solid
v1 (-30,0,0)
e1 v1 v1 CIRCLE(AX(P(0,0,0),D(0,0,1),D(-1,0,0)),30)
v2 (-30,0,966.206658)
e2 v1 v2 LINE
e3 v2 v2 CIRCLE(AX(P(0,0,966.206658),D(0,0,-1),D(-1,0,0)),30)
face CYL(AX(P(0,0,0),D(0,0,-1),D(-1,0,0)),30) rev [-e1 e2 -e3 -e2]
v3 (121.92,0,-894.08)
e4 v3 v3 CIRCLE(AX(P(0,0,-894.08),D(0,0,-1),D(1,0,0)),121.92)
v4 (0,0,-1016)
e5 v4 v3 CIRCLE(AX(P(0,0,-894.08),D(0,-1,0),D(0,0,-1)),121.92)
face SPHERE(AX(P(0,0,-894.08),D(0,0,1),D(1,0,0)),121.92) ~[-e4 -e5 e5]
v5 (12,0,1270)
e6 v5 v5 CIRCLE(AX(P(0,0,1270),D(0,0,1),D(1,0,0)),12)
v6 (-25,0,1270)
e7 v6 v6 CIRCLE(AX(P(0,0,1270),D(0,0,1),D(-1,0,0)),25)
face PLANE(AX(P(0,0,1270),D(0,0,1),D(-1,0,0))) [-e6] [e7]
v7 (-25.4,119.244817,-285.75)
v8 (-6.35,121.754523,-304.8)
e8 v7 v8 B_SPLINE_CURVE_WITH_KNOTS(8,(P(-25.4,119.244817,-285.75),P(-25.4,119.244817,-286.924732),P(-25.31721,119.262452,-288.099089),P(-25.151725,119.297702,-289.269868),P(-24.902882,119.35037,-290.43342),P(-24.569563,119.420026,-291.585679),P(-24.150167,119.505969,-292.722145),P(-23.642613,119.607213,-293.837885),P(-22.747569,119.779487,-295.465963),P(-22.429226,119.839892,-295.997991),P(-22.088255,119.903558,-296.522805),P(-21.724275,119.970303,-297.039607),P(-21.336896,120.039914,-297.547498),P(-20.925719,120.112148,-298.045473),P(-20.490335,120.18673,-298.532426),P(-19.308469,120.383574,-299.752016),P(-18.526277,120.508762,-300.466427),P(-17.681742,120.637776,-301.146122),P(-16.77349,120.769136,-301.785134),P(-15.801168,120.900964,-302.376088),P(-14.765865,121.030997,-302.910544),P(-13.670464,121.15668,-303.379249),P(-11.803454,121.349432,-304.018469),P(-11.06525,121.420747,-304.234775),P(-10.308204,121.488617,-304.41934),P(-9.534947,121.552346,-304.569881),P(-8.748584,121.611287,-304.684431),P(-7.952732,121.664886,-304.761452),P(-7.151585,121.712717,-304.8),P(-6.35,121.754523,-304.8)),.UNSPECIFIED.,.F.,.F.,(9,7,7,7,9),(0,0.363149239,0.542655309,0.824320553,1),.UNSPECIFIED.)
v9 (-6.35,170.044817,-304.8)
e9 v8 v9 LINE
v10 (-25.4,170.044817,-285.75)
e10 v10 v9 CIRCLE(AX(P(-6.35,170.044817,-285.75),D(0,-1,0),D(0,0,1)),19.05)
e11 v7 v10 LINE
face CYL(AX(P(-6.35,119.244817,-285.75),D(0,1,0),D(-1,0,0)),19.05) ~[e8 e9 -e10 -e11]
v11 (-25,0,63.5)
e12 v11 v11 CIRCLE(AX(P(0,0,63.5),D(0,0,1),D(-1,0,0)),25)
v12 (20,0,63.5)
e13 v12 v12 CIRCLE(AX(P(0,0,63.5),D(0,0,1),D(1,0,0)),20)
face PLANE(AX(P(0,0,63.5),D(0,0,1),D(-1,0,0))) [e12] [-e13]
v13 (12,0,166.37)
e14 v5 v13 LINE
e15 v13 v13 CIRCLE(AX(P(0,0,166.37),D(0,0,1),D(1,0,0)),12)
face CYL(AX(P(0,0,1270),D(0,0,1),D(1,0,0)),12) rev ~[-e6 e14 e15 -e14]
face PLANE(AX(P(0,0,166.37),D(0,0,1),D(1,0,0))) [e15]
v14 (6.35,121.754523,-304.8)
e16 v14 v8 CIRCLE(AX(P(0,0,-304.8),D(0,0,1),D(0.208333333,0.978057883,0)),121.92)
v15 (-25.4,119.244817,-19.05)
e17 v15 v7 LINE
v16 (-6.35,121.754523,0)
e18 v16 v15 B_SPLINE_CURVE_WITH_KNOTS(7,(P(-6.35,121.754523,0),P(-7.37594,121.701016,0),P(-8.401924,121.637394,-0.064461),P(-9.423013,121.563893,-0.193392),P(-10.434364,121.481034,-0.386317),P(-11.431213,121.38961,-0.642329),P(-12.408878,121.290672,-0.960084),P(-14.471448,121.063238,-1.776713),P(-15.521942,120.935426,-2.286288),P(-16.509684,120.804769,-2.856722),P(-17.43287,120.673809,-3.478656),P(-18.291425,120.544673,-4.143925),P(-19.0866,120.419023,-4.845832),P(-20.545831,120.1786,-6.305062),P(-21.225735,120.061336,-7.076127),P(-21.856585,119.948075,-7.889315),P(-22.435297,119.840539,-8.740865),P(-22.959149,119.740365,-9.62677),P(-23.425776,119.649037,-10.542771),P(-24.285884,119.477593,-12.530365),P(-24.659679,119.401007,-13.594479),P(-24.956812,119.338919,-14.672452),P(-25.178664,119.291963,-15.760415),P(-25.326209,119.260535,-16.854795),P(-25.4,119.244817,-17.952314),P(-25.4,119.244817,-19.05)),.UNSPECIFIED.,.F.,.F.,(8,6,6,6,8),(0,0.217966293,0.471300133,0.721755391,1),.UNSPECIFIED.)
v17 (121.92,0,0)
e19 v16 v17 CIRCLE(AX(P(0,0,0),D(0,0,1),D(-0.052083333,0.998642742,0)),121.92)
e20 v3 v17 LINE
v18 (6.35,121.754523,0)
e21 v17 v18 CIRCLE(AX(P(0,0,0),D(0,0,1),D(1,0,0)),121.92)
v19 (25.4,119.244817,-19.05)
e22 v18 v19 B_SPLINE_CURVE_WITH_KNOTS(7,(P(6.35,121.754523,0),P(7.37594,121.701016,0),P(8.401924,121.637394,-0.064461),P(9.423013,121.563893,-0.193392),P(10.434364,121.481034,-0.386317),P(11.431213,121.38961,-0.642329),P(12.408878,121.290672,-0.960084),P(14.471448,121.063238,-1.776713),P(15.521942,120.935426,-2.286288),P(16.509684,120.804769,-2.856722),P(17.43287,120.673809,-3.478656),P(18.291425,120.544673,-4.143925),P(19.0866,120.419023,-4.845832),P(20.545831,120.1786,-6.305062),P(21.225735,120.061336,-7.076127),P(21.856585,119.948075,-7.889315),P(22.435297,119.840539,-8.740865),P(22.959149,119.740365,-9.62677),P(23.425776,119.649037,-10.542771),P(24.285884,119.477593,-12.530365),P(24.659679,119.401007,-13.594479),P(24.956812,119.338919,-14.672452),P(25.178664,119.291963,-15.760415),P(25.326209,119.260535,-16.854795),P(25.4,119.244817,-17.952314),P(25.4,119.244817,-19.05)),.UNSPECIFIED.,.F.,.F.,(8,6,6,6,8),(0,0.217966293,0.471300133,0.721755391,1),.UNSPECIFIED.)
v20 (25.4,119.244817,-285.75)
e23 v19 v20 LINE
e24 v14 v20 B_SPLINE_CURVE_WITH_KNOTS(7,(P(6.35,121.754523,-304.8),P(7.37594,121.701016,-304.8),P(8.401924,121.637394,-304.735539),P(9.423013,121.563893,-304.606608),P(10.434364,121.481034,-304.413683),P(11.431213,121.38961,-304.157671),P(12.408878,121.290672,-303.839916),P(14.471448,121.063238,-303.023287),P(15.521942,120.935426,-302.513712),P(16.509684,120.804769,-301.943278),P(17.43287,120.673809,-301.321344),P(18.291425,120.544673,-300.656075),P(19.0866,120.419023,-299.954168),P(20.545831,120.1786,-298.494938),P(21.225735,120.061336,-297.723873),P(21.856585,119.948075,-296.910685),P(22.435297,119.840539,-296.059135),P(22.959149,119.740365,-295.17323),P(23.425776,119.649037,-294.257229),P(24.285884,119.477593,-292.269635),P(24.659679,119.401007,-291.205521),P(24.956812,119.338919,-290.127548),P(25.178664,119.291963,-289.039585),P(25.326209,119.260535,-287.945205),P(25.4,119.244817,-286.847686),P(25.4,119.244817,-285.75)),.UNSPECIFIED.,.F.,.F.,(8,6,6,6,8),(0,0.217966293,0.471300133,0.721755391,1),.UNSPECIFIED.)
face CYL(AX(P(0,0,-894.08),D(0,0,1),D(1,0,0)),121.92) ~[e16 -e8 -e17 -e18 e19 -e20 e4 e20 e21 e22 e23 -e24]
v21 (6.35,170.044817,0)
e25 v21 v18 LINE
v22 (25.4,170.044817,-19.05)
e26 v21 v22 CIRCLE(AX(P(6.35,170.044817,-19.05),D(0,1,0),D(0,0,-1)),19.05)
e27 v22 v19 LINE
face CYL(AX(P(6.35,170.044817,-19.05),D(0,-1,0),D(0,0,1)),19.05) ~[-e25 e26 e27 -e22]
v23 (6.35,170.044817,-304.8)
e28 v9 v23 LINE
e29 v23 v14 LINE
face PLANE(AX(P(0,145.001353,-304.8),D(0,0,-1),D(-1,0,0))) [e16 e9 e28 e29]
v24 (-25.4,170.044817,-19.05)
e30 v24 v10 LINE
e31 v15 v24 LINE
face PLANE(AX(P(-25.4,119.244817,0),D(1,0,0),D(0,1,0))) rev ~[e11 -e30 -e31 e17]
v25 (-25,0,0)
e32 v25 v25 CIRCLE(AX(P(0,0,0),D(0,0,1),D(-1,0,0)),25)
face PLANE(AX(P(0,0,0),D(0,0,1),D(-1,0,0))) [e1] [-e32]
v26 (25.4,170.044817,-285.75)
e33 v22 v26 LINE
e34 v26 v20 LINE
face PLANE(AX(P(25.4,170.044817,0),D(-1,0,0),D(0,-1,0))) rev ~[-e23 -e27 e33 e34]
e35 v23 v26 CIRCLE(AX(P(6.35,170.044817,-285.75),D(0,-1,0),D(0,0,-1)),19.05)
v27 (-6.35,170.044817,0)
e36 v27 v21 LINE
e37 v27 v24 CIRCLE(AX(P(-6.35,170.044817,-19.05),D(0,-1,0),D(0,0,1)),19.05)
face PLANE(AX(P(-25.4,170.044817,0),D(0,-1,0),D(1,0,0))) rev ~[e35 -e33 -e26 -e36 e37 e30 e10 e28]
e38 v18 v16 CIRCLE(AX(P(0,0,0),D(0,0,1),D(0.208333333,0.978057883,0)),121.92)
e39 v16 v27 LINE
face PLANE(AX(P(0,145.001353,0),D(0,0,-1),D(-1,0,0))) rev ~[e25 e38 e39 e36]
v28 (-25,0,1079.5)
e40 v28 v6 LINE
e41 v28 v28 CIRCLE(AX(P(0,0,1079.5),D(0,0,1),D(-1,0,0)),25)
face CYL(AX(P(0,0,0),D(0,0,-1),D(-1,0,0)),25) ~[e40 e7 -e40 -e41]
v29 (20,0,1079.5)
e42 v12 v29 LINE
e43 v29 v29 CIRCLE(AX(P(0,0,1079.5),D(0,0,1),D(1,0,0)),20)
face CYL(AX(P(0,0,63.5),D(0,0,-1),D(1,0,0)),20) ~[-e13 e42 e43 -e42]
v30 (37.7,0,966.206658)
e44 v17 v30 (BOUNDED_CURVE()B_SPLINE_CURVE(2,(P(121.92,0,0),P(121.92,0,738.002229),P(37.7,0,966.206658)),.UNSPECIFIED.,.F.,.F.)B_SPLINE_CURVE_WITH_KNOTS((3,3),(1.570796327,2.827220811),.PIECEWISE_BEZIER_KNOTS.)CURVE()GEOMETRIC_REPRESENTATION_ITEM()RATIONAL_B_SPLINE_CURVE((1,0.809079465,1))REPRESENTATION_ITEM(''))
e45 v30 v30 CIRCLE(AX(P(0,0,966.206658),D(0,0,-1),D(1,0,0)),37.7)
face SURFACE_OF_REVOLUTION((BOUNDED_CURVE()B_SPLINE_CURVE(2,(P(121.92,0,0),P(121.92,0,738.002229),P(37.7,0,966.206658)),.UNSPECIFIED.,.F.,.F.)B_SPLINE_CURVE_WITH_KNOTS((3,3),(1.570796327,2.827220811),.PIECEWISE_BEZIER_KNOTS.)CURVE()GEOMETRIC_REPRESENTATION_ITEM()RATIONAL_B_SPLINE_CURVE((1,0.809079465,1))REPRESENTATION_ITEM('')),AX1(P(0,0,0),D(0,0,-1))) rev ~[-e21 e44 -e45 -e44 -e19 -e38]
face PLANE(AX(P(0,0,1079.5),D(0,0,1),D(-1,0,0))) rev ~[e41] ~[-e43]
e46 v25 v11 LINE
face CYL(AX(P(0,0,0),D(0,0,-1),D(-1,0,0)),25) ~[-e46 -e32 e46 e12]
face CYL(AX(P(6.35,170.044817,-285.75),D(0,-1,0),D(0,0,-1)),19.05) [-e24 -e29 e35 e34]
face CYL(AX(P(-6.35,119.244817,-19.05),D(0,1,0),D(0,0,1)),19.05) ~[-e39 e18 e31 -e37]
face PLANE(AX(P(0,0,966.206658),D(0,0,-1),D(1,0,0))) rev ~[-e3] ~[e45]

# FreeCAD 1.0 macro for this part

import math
import FreeCAD as App
import Part
import Sketcher
from FreeCAD import Vector
Q = App.Units.Quantity


def edges_at(feature, points):
    """Names of the edges that pass closest to the given points."""
    edges = feature.Shape.Edges
    near = lambda p: min(range(len(edges)), key=lambda i: edges[i].distToShape(Part.Vertex(*p))[0])
    return sorted({f"Edge{near(p) + 1}" for p in points})

doc = App.newDocument("Part")
body = doc.addObject("PartDesign::Body", "Body")

# Sketch on YZ plane
sketch1 = body.newObject("Sketcher::SketchObject", "Sketch")
sketch1.AttachmentSupport = (doc.getObject("YZ_Plane"), [""])
sketch1.MapMode = "FlatFace"
sketch1.addGeometry([
    Part.LineSegment(Vector(37.7, 966.206658, 0), Vector(25, 966.206658, 0)),  # 0
    Part.LineSegment(Vector(25, 966.206658, 0), Vector(25, 0, 0)),  # 1
    Part.LineSegment(Vector(25, 0, 0), Vector(0, 0, 0)),  # 2
    Part.LineSegment(Vector(0, 0, 0), Vector(0, -1016, 0)),  # 3
    Part.ArcOfCircle(Part.Circle(Vector(0, -894.08, 0), Vector(0, 0, 1), 121.92), math.radians(-90), math.radians(0)),  # 4
    Part.LineSegment(Vector(121.92, -894.08, 0), Vector(121.92, 0, 0)),  # 5
    Part.BSplineCurve([Vector(121.92, 0, 0), Vector(121.92, 738.002229, 0), Vector(37.7, 966.206658, 0)], [3, 3], [1.570796327, 2.827220811], False, 2, [1, 0.809079465, 1], False),  # 6
], False)
sketch1.addConstraint([
    Sketcher.Constraint("Block", 6),
    Sketcher.Constraint("Coincident", 0, 2, 1, 1),
    Sketcher.Constraint("Coincident", 1, 2, 2, 1),
    Sketcher.Constraint("Coincident", 2, 2, 3, 1),
    Sketcher.Constraint("Coincident", 3, 2, 4, 1),
    Sketcher.Constraint("Tangent", 4, 2, 5, 1),
    Sketcher.Constraint("Coincident", 5, 2, 6, 1),
    Sketcher.Constraint("Coincident", 6, 2, 0, 1),
    Sketcher.Constraint("Horizontal", 0),
    Sketcher.Constraint("Vertical", 1),
    Sketcher.Constraint("Horizontal", 2),
    Sketcher.Constraint("Vertical", 3),
    Sketcher.Constraint("Vertical", 5),
    Sketcher.Constraint("Coincident", 2, 2, -1, 1),
    Sketcher.Constraint("PointOnObject", 4, 3, -2),
    Sketcher.Constraint("DistanceY", 3, 2, 3, 1, Q("40 in")),
    Sketcher.Constraint("DistanceX", 0, 2, 0, 1, Q("0.5 in")),
])
revolution = body.newObject("PartDesign::Revolution", "Revolution")
revolution.Profile = sketch1
revolution.ReferenceAxis = (sketch1, ["V_Axis"])
revolution.Angle = 360

# Sketch on XY plane
sketch2 = body.newObject("Sketcher::SketchObject", "Sketch001")
sketch2.AttachmentSupport = (doc.getObject("XY_Plane"), [""])
sketch2.MapMode = "FlatFace"
sketch2.addGeometry(Part.Circle(Vector(0, 0, 0), Vector(0, 0, 1), 30), False)
sketch2.addConstraint([
    Sketcher.Constraint("Coincident", 0, 3, -1, 1),
    Sketcher.Constraint("Diameter", 0, 60.0),
])
pocket1 = body.newObject("PartDesign::Pocket", "Pocket")
pocket1.Profile = sketch2
pocket1.Type = "ThroughAll"
pocket1.Reversed = True

# Sketch on XY plane
sketch3 = body.newObject("Sketcher::SketchObject", "Sketch002")
sketch3.AttachmentSupport = (doc.getObject("XY_Plane"), [""])
sketch3.MapMode = "FlatFace"
sketch3.addGeometry(Part.Circle(Vector(0, 0, 0), Vector(0, 0, 1), 25), False)
sketch3.addConstraint([
    Sketcher.Constraint("Coincident", 0, 3, -1, 1),
    Sketcher.Constraint("Diameter", 0, 50.0),
])
pad1 = body.newObject("PartDesign::Pad", "Pad")
pad1.Profile = sketch3
pad1.Length = Q("50 in")

# Sketch on XY plane
sketch4 = body.newObject("Sketcher::SketchObject", "Sketch003")
sketch4.AttachmentSupport = (doc.getObject("XY_Plane"), [""])
sketch4.MapMode = "FlatFace"
sketch4.AttachmentOffset = App.Placement(Vector(0, 0, 50 * 25.4), App.Rotation())
sketch4.addGeometry(Part.Circle(Vector(0, 0, 0), Vector(0, 0, 1), 12), False)
sketch4.addConstraint([
    Sketcher.Constraint("Coincident", 0, 3, -1, 1),
    Sketcher.Constraint("Diameter", 0, 24.0),
])
pocket2 = body.newObject("PartDesign::Pocket", "Pocket001")
pocket2.Profile = sketch4
pocket2.Length = Q("43.45 in")

# Sketch on XY plane
sketch5 = body.newObject("Sketcher::SketchObject", "Sketch004")
sketch5.AttachmentSupport = (doc.getObject("XY_Plane"), [""])
sketch5.MapMode = "FlatFace"
sketch5.AttachmentOffset = App.Placement(Vector(0, 0, 2.5 * 25.4), App.Rotation())
sketch5.addGeometry([
    Part.Circle(Vector(0, 0, 0), Vector(0, 0, 1), 25),
    Part.Circle(Vector(0, 0, 0), Vector(0, 0, 1), 20),
], False)
sketch5.addConstraint([
    Sketcher.Constraint("Coincident", 0, 3, -1, 1),
    Sketcher.Constraint("Coincident", 1, 3, -1, 1),
    Sketcher.Constraint("Diameter", 0, 50.0),
    Sketcher.Constraint("Diameter", 1, 40.0),
])
pocket3 = body.newObject("PartDesign::Pocket", "Pocket002")
pocket3.Profile = sketch5
pocket3.Length = Q("40 in")
pocket3.Reversed = True

# Sketch on XY plane
sketch6 = body.newObject("Sketcher::SketchObject", "Sketch005")
sketch6.AttachmentSupport = (doc.getObject("XY_Plane"), [""])
sketch6.MapMode = "FlatFace"
sketch6.addGeometry([
    Part.LineSegment(Vector(25.4, 170.044817, 0), Vector(-25.4, 170.044817, 0)),
    Part.LineSegment(Vector(-25.4, 170.044817, 0), Vector(-25.4, 119.244817, 0)),
    Part.ArcOfCircle(Part.Circle(Vector(0, 0, 0), Vector(0, 0, 1), 121.92), math.radians(77.975301), math.radians(102.024699)),
    Part.LineSegment(Vector(25.4, 119.244817, 0), Vector(25.4, 170.044817, 0)),
], False)
sketch6.addConstraint([
    Sketcher.Constraint("Coincident", 0, 2, 1, 1),
    Sketcher.Constraint("Coincident", 1, 2, 2, 2),
    Sketcher.Constraint("Coincident", 2, 1, 3, 1),
    Sketcher.Constraint("Coincident", 3, 2, 0, 1),
    Sketcher.Constraint("Horizontal", 0),
    Sketcher.Constraint("Vertical", 1),
    Sketcher.Constraint("Vertical", 3),
    Sketcher.Constraint("Coincident", 2, 3, -1, 1),
    Sketcher.Constraint("Horizontal", 1, 2, 2, 1),
    Sketcher.Constraint("Equal", 0, 1),
    Sketcher.Constraint("Radius", 2, Q("4.8 in")),
    Sketcher.Constraint("DistanceX", 0, 2, 0, 1, Q("2 in")),
])
pad2 = body.newObject("PartDesign::Pad", "Pad001")
pad2.Profile = sketch6
pad2.Length = Q("12 in")
pad2.Reversed = True
doc.recompute()

fillet = body.newObject("PartDesign::Fillet", "Fillet")
fillet.Base = (pad2, edges_at(pad2, [
    (-25.4, 144.645, -304.8),
    (25.4, 144.645, -304.8),
    (-25.4, 144.645, 0),
    (25.4, 144.645, 0),
]))
fillet.Radius = Q("0.75 in")

doc.recompute()
